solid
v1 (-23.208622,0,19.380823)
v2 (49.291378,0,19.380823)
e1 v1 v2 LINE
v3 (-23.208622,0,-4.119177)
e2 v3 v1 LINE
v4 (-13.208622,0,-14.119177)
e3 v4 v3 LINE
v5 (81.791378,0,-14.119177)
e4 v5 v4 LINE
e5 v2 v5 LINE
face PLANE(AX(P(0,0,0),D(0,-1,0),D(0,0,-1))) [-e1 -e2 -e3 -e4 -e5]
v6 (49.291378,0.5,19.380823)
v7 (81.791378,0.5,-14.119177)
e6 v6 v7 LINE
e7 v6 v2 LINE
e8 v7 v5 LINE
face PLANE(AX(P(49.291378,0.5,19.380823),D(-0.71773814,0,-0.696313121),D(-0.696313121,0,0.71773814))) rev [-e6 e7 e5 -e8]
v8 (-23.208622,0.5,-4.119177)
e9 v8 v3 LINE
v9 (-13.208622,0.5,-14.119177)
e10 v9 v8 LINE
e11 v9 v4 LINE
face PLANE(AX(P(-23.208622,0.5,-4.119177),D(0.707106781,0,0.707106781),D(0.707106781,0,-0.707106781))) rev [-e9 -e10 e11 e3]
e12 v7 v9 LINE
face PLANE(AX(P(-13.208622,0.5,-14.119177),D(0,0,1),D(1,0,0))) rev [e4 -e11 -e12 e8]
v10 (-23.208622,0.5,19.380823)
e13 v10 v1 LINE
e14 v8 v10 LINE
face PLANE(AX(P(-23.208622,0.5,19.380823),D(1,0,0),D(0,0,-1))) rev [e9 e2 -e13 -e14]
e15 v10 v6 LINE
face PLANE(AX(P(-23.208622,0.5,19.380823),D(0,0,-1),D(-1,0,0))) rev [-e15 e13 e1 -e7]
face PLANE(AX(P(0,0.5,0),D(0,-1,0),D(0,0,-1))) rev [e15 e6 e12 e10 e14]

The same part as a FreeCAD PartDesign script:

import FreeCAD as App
import Part
import Sketcher
Q = App.Units.Quantity


def add_polygon(sketch, points):
    """Adds a closed chain of lines whose ends are joined by coincident constraints."""
    first, n = sketch.GeometryCount, len(points)
    for a, b in zip(points, points[1:] + points[:1]):
        sketch.addGeometry(Part.LineSegment(App.Vector(*a, 0), App.Vector(*b, 0)), False)
    for i in range(n):
        sketch.addConstraint(Sketcher.Constraint("Coincident", first + i, 2, first + (i + 1) % n, 1))

doc = App.newDocument("Part")
body = doc.addObject("PartDesign::Body", "Body")

sketch1 = body.newObject("Sketcher::SketchObject", "Sketch")
sketch1.AttachmentSupport = (doc.getObject("XZ_Plane"), [""])
sketch1.MapMode = "FlatFace"
add_polygon(sketch1, [(-23.208622, 19.380823), (49.291378, 19.380823), (81.791378, -14.119177), (-13.208622, -14.119177), (-23.208622, -4.119177)])
sketch1.addConstraint(Sketcher.Constraint("Horizontal", 0))
sketch1.addConstraint(Sketcher.Constraint("Horizontal", 2))
sketch1.addConstraint(Sketcher.Constraint("Vertical", 4))
sketch1.addConstraint(Sketcher.Constraint("DistanceX", 2, 2, 2, 1, 95.0))
sketch1.addConstraint(Sketcher.Constraint("Angle", 3, Q("135 deg")))
sketch1.addConstraint(Sketcher.Constraint("DistanceX", 0, 1, 0, 2, 72.5))
sketch1.addConstraint(Sketcher.Constraint("DistanceY", 4, 1, 4, 2, 23.5))
sketch1.addConstraint(Sketcher.Constraint("DistanceX", 3, 2, 2, 2, 10.0))
sketch1.addConstraint(Sketcher.Constraint("DistanceX", -1, 1, 0, 2, 49.291378))
sketch1.addConstraint(Sketcher.Constraint("DistanceY", -1, 1, 0, 2, 19.380823))
pad1 = body.newObject("PartDesign::Pad", "Pad")
pad1.Profile = sketch1
pad1.Length = 0.5
pad1.Reversed = True

doc.recompute()
